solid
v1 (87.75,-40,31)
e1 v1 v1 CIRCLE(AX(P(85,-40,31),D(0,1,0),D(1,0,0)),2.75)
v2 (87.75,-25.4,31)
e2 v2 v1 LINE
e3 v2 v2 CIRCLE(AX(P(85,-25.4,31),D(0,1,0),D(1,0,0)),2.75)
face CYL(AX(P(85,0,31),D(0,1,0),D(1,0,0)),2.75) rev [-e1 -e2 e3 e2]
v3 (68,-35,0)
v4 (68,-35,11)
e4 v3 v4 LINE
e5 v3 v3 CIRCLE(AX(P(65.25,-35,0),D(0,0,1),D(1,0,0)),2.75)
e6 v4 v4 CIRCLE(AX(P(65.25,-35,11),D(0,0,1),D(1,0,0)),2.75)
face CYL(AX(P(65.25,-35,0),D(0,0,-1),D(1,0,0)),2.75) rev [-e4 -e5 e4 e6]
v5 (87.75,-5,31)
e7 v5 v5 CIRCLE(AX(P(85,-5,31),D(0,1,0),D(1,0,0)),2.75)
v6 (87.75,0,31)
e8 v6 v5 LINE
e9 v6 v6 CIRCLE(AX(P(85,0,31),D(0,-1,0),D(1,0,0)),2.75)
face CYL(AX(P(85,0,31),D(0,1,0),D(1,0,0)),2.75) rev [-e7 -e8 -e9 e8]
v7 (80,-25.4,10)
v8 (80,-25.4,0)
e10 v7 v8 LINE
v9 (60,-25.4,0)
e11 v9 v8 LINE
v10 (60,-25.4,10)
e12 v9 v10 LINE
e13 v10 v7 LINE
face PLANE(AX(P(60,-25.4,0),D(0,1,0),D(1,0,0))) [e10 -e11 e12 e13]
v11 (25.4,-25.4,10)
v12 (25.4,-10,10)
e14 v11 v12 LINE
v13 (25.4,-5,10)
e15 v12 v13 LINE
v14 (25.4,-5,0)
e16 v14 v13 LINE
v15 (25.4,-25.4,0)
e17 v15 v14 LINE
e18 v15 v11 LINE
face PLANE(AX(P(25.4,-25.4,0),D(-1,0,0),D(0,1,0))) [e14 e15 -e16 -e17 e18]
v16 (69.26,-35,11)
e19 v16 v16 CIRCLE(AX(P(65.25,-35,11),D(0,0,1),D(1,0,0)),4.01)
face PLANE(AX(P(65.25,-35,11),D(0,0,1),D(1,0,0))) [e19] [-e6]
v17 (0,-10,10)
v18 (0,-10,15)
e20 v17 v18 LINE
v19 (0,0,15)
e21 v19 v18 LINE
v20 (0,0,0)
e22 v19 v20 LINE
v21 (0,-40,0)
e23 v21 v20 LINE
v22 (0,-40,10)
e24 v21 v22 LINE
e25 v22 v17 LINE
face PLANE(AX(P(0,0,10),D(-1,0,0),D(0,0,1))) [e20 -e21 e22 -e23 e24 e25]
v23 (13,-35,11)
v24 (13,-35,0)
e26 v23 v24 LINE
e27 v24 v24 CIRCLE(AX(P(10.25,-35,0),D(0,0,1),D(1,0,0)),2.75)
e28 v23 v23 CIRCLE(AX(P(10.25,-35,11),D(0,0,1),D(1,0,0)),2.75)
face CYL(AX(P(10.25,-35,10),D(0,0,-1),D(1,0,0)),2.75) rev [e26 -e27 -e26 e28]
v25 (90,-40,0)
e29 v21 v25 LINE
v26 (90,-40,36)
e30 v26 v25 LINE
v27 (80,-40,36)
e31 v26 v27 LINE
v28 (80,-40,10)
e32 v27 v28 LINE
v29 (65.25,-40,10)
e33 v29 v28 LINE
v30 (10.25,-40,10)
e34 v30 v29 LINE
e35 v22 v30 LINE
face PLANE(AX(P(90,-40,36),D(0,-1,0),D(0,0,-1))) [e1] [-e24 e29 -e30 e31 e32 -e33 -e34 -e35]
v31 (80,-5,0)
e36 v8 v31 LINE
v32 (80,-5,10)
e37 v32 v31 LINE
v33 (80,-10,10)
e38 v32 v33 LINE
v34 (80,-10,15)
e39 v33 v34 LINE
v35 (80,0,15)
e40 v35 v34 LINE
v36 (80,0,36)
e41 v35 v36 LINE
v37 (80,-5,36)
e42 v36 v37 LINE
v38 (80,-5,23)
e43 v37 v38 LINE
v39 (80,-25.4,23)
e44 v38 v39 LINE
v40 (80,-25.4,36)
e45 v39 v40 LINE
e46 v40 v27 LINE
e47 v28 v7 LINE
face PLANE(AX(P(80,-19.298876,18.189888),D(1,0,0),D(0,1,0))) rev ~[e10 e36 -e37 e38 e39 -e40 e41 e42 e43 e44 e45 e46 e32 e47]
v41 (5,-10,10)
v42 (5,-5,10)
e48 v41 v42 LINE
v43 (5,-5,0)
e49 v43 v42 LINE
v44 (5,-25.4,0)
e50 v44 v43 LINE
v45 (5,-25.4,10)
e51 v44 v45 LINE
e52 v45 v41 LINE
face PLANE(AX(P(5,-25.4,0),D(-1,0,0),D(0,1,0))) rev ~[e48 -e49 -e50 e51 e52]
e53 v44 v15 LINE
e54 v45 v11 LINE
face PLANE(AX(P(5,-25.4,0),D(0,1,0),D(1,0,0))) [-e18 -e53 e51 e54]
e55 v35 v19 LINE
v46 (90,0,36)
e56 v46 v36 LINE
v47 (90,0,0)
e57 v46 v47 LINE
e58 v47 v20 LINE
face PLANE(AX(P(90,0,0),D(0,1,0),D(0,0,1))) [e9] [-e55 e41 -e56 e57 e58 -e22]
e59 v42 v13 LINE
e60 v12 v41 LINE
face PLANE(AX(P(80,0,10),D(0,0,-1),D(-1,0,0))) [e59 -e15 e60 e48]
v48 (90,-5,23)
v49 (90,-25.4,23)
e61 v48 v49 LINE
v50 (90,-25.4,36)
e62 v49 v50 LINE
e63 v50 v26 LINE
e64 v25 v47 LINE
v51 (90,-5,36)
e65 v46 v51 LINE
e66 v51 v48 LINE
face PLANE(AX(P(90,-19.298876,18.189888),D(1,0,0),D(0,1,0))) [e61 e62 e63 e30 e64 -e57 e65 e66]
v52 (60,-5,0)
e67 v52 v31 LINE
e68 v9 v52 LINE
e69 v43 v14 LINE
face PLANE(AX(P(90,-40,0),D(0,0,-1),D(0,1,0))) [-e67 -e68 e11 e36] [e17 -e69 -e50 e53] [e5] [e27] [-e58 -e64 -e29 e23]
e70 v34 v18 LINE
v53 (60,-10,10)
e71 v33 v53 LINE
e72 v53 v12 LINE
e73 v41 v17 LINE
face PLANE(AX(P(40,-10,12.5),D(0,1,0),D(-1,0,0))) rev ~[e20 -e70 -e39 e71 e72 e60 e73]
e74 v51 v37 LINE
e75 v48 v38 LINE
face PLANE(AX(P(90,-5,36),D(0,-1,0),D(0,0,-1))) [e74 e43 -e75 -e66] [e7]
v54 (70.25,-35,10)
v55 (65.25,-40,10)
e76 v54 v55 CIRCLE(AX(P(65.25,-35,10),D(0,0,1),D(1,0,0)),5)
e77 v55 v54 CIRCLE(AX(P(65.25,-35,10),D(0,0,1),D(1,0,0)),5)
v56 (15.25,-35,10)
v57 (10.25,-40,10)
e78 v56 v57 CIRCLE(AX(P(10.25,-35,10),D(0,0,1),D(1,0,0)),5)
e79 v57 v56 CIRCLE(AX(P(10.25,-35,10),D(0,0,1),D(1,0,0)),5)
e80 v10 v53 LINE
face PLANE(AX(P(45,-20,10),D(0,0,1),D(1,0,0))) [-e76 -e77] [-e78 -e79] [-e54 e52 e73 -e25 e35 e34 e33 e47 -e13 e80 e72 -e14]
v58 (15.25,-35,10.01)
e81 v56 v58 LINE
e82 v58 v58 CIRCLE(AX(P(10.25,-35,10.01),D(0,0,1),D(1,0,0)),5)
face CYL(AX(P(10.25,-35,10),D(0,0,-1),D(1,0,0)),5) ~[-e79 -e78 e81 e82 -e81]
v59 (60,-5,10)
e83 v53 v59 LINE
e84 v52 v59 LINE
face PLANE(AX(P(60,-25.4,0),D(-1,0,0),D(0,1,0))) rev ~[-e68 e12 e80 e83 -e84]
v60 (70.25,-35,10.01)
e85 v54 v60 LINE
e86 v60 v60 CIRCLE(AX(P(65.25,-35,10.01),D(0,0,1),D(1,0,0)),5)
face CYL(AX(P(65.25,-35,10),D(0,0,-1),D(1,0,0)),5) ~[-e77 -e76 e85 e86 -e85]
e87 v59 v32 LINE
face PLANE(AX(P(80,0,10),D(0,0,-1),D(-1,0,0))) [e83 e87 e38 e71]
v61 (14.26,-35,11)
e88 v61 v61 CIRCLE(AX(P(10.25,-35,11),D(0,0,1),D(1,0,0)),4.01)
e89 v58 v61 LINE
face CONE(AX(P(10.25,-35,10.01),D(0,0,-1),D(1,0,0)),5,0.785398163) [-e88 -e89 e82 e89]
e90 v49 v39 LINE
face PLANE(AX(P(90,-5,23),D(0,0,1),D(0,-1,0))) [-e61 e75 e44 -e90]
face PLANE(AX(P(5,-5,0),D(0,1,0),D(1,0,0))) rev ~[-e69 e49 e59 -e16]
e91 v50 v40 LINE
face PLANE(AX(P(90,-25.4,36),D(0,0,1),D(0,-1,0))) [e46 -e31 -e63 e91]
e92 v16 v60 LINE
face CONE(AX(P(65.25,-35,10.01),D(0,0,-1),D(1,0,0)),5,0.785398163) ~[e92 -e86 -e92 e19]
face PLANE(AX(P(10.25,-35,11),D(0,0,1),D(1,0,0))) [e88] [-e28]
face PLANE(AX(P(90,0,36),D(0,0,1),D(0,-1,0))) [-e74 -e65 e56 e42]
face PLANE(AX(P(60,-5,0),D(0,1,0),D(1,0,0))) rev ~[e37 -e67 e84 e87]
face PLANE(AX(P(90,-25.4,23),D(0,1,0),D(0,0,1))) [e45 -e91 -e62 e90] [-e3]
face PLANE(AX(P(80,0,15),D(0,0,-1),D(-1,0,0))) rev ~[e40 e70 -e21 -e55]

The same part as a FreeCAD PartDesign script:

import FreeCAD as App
import Part
import Sketcher


def edges_at(feature, points):
    """Names of the edges that pass closest to the given points."""
    edges = feature.Shape.Edges
    near = lambda p: min(range(len(edges)), key=lambda i: edges[i].distToShape(Part.Vertex(*p))[0])
    return sorted({f"Edge{near(p) + 1}" for p in points})

doc = App.newDocument("Part")
body = doc.addObject("PartDesign::Body", "Body")

# Sketch on XY plane
sketch1 = doc.addObject("Sketcher::SketchObject", "Sketch")
body.addObject(sketch1)
sketch1.AttachmentSupport = (doc.XY_Plane, [""])
sketch1.MapMode = "FlatFace"
sketch1.addGeometry(Part.LineSegment(App.Vector(0, 0, 0), App.Vector(0, -40, 0)), False)
sketch1.addGeometry(Part.LineSegment(App.Vector(0, -40, 0), App.Vector(90, -40, 0)), False)
sketch1.addGeometry(Part.LineSegment(App.Vector(90, -40, 0), App.Vector(90, 0, 0)), False)
sketch1.addGeometry(Part.LineSegment(App.Vector(90, 0, 0), App.Vector(0, 0, 0)), False)
sketch1.addGeometry(Part.LineSegment(App.Vector(25.4, -25.4, 0), App.Vector(5, -25.4, 0)), False)
sketch1.addGeometry(Part.LineSegment(App.Vector(5, -25.4, 0), App.Vector(5, -5, 0)), False)
sketch1.addGeometry(Part.LineSegment(App.Vector(5, -5, 0), App.Vector(25.4, -5, 0)), False)
sketch1.addGeometry(Part.LineSegment(App.Vector(25.4, -5, 0), App.Vector(25.4, -25.4, 0)), False)
sketch1.addGeometry(Part.LineSegment(App.Vector(80.4, -25.4, 0), App.Vector(60, -25.4, 0)), False)
sketch1.addGeometry(Part.LineSegment(App.Vector(60, -25.4, 0), App.Vector(60, -5, 0)), False)
sketch1.addGeometry(Part.LineSegment(App.Vector(60, -5, 0), App.Vector(80.4, -5, 0)), False)
sketch1.addGeometry(Part.LineSegment(App.Vector(80.4, -5, 0), App.Vector(80.4, -25.4, 0)), False)
sketch1.addConstraint(Sketcher.Constraint("Coincident", 0, 2, 1, 1))
sketch1.addConstraint(Sketcher.Constraint("Coincident", 1, 2, 2, 1))
sketch1.addConstraint(Sketcher.Constraint("Coincident", 2, 2, 3, 1))
sketch1.addConstraint(Sketcher.Constraint("Coincident", 3, 2, 0, 1))
sketch1.addConstraint(Sketcher.Constraint("Coincident", 4, 2, 5, 1))
sketch1.addConstraint(Sketcher.Constraint("Coincident", 5, 2, 6, 1))
sketch1.addConstraint(Sketcher.Constraint("Coincident", 6, 2, 7, 1))
sketch1.addConstraint(Sketcher.Constraint("Coincident", 7, 2, 4, 1))
sketch1.addConstraint(Sketcher.Constraint("Coincident", 8, 2, 9, 1))
sketch1.addConstraint(Sketcher.Constraint("Coincident", 9, 2, 10, 1))
sketch1.addConstraint(Sketcher.Constraint("Coincident", 10, 2, 11, 1))
sketch1.addConstraint(Sketcher.Constraint("Coincident", 11, 2, 8, 1))
sketch1.addConstraint(Sketcher.Constraint("Vertical", 0))
sketch1.addConstraint(Sketcher.Constraint("Horizontal", 1))
sketch1.addConstraint(Sketcher.Constraint("Vertical", 2))
sketch1.addConstraint(Sketcher.Constraint("Horizontal", 3))
sketch1.addConstraint(Sketcher.Constraint("Horizontal", 4))
sketch1.addConstraint(Sketcher.Constraint("Vertical", 5))
sketch1.addConstraint(Sketcher.Constraint("Horizontal", 6))
sketch1.addConstraint(Sketcher.Constraint("Vertical", 7))
sketch1.addConstraint(Sketcher.Constraint("Horizontal", 8))
sketch1.addConstraint(Sketcher.Constraint("Vertical", 9))
sketch1.addConstraint(Sketcher.Constraint("Horizontal", 10))
sketch1.addConstraint(Sketcher.Constraint("Vertical", 11))
sketch1.addConstraint(Sketcher.Constraint("Coincident", 3, 2, -1, 1))
sketch1.addConstraint(Sketcher.Constraint("Horizontal", 7, 2, 8, 2))
sketch1.addConstraint(Sketcher.Constraint("Horizontal", 6, 2, 9, 2))
sketch1.addConstraint(Sketcher.Constraint("Equal", 6, 8))
sketch1.addConstraint(Sketcher.Constraint("Equal", 10, 5))
sketch1.addConstraint(Sketcher.Constraint("DistanceX", 1, 1, 1, 2, 90.0))
sketch1.addConstraint(Sketcher.Constraint("DistanceY", 0, 2, 0, 1, 40.0))
sketch1.addConstraint(Sketcher.Constraint("DistanceX", 4, 2, 4, 1, 20.4))
sketch1.addConstraint(Sketcher.Constraint("DistanceX", -1, 1, 4, 2, 5.0))
sketch1.addConstraint(Sketcher.Constraint("DistanceY", 5, 2, -1, 1, 5.0))
sketch1.addConstraint(Sketcher.Constraint("DistanceX", -1, 1, 8, 2, 60.0))
pad1 = doc.addObject("PartDesign::Pad", "Pad")
body.addObject(pad1)
pad1.Profile = sketch1
pad1.Length = 10

# Sketch on YZ plane
sketch2 = doc.addObject("Sketcher::SketchObject", "Sketch001")
body.addObject(sketch2)
sketch2.AttachmentSupport = (doc.YZ_Plane, [""])
sketch2.MapMode = "FlatFace"
sketch2.AttachmentOffset = App.Placement(App.Vector(0, 0, 90), App.Rotation())
sketch2.addGeometry(Part.LineSegment(App.Vector(0, 36, 0), App.Vector(-5, 36, 0)), False)
sketch2.addGeometry(Part.LineSegment(App.Vector(-5, 36, 0), App.Vector(-5, 23, 0)), False)
sketch2.addGeometry(Part.LineSegment(App.Vector(-5, 23, 0), App.Vector(-25.4, 23, 0)), False)
sketch2.addGeometry(Part.LineSegment(App.Vector(-25.4, 23, 0), App.Vector(-25.4, 36, 0)), False)
sketch2.addGeometry(Part.LineSegment(App.Vector(-25.4, 36, 0), App.Vector(-40, 36, 0)), False)
sketch2.addGeometry(Part.LineSegment(App.Vector(-40, 36, 0), App.Vector(-40, 0, 0)), False)
sketch2.addGeometry(Part.LineSegment(App.Vector(-40, 0, 0), App.Vector(0, 0, 0)), False)
sketch2.addGeometry(Part.LineSegment(App.Vector(0, 0, 0), App.Vector(0, 36, 0)), False)
sketch2.addConstraint(Sketcher.Constraint("Coincident", 0, 2, 1, 1))
sketch2.addConstraint(Sketcher.Constraint("Coincident", 1, 2, 2, 1))
sketch2.addConstraint(Sketcher.Constraint("Coincident", 2, 2, 3, 1))
sketch2.addConstraint(Sketcher.Constraint("Coincident", 3, 2, 4, 1))
sketch2.addConstraint(Sketcher.Constraint("Coincident", 4, 2, 5, 1))
sketch2.addConstraint(Sketcher.Constraint("Coincident", 5, 2, 6, 1))
sketch2.addConstraint(Sketcher.Constraint("Coincident", 6, 2, 7, 1))
sketch2.addConstraint(Sketcher.Constraint("Coincident", 7, 2, 0, 1))
sketch2.addConstraint(Sketcher.Constraint("Horizontal", 0))
sketch2.addConstraint(Sketcher.Constraint("Vertical", 1))
sketch2.addConstraint(Sketcher.Constraint("Horizontal", 2))
sketch2.addConstraint(Sketcher.Constraint("Vertical", 3))
sketch2.addConstraint(Sketcher.Constraint("Horizontal", 4))
sketch2.addConstraint(Sketcher.Constraint("Vertical", 5))
sketch2.addConstraint(Sketcher.Constraint("Horizontal", 6))
sketch2.addConstraint(Sketcher.Constraint("Vertical", 7))
sketch2.addConstraint(Sketcher.Constraint("Coincident", 6, 2, -1, 1))
sketch2.addConstraint(Sketcher.Constraint("Horizontal", 0, 2, 3, 2))
sketch2.addConstraint(Sketcher.Constraint("DistanceX", 0, 2, 0, 1, 5.0))
sketch2.addConstraint(Sketcher.Constraint("DistanceX", 6, 1, 6, 2, 40.0))
sketch2.addConstraint(Sketcher.Constraint("DistanceY", 1, 2, 1, 1, 13.0))
sketch2.addConstraint(Sketcher.Constraint("DistanceY", 5, 2, 5, 1, 36.0))
sketch2.addConstraint(Sketcher.Constraint("DistanceX", 2, 2, 2, 1, 20.4))
pad2 = doc.addObject("PartDesign::Pad", "Pad001")
body.addObject(pad2)
pad2.Profile = sketch2
pad2.Length = 10
pad2.Reversed = True

# Sketch on XZ plane
sketch3 = doc.addObject("Sketcher::SketchObject", "Sketch002")
body.addObject(sketch3)
sketch3.AttachmentSupport = (doc.XZ_Plane, [""])
sketch3.MapMode = "FlatFace"
sketch3.addGeometry(Part.Circle(App.Vector(85, 31, 0), App.Vector(0, 0, 1), 2.75), False)
sketch3.addConstraint(Sketcher.Constraint("Diameter", 0, 5.5))
sketch3.addConstraint(Sketcher.Constraint("DistanceX", -1, 1, 0, 3, 85.0))
sketch3.addConstraint(Sketcher.Constraint("DistanceY", -1, 1, 0, 3, 31.0))
pocket1 = doc.addObject("PartDesign::Pocket", "Pocket")
body.addObject(pocket1)
pocket1.Profile = sketch3
pocket1.Type = "ThroughAll"
pocket1.Reversed = True

# Sketch on XY plane
sketch4 = doc.addObject("Sketcher::SketchObject", "Sketch003")
body.addObject(sketch4)
sketch4.AttachmentSupport = (doc.XY_Plane, [""])
sketch4.MapMode = "FlatFace"
sketch4.addGeometry(Part.Circle(App.Vector(10.25, -35, 0), App.Vector(0, 0, 1), 2.75), False)
sketch4.addGeometry(Part.Circle(App.Vector(65.25, -35, 0), App.Vector(0, 0, 1), 2.75), False)
sketch4.addConstraint(Sketcher.Constraint("Equal", 0, 1))
sketch4.addConstraint(Sketcher.Constraint("Horizontal", 0, 3, 1, 3))
sketch4.addConstraint(Sketcher.Constraint("Diameter", 0, 5.5))
sketch4.addConstraint(Sketcher.Constraint("DistanceY", 0, 3, -1, 1, 35.0))
sketch4.addConstraint(Sketcher.Constraint("DistanceX", 0, 3, 1, 3, 55.0))
sketch4.addConstraint(Sketcher.Constraint("DistanceX", -1, 1, 0, 3, 10.25))
pocket2 = doc.addObject("PartDesign::Pocket", "Pocket001")
body.addObject(pocket2)
pocket2.Profile = sketch4
pocket2.Type = "ThroughAll"
pocket2.Reversed = True

# Sketch on XZ plane
sketch5 = doc.addObject("Sketcher::SketchObject", "Sketch004")
body.addObject(sketch5)
sketch5.AttachmentSupport = (doc.XZ_Plane, [""])
sketch5.MapMode = "FlatFace"
sketch5.addGeometry(Part.LineSegment(App.Vector(80, 15, 0), App.Vector(80, 10, 0)), False)
sketch5.addGeometry(Part.LineSegment(App.Vector(80, 10, 0), App.Vector(0, 10, 0)), False)
sketch5.addGeometry(Part.LineSegment(App.Vector(0, 10, 0), App.Vector(0, 15, 0)), False)
sketch5.addGeometry(Part.LineSegment(App.Vector(0, 15, 0), App.Vector(80, 15, 0)), False)
sketch5.addConstraint(Sketcher.Constraint("Coincident", 0, 2, 1, 1))
sketch5.addConstraint(Sketcher.Constraint("Coincident", 1, 2, 2, 1))
sketch5.addConstraint(Sketcher.Constraint("Coincident", 2, 2, 3, 1))
sketch5.addConstraint(Sketcher.Constraint("Coincident", 3, 2, 0, 1))
sketch5.addConstraint(Sketcher.Constraint("Vertical", 0))
sketch5.addConstraint(Sketcher.Constraint("Horizontal", 1))
sketch5.addConstraint(Sketcher.Constraint("Vertical", 2))
sketch5.addConstraint(Sketcher.Constraint("Horizontal", 3))
sketch5.addConstraint(Sketcher.Constraint("PointOnObject", 1, 2, -2))
sketch5.addConstraint(Sketcher.Constraint("DistanceX", 1, 2, 1, 1, 80.0))
sketch5.addConstraint(Sketcher.Constraint("DistanceY", 0, 2, 0, 1, 5.0))
sketch5.addConstraint(Sketcher.Constraint("DistanceY", -1, 1, 0, 2, 10.0))
pad3 = doc.addObject("PartDesign::Pad", "Pad002")
body.addObject(pad3)
pad3.Profile = sketch5
pad3.Length = 10

# Sketch on XY plane
sketch6 = doc.addObject("Sketcher::SketchObject", "Sketch005")
body.addObject(sketch6)
sketch6.AttachmentSupport = (doc.XY_Plane, [""])
sketch6.MapMode = "FlatFace"
sketch6.AttachmentOffset = App.Placement(App.Vector(0, 0, 10), App.Rotation())
sketch6.addGeometry(Part.Circle(App.Vector(10.25, -35, 0), App.Vector(0, 0, 1), 5), False)
sketch6.addGeometry(Part.Circle(App.Vector(10.25, -35, 0), App.Vector(0, 0, 1), 2.75), False)
sketch6.addGeometry(Part.Circle(App.Vector(65.25, -35, 0), App.Vector(0, 0, 1), 5), False)
sketch6.addGeometry(Part.Circle(App.Vector(65.25, -35, 0), App.Vector(0, 0, 1), 2.75), False)
sketch6.addConstraint(Sketcher.Constraint("Coincident", 1, 3, 0, 3))
sketch6.addConstraint(Sketcher.Constraint("Coincident", 3, 3, 2, 3))
sketch6.addConstraint(Sketcher.Constraint("Equal", 0, 2))
sketch6.addConstraint(Sketcher.Constraint("Equal", 1, 3))
sketch6.addConstraint(Sketcher.Constraint("Horizontal", 1, 3, 2, 3))
sketch6.addConstraint(Sketcher.Constraint("Diameter", 0, 10.0))
sketch6.addConstraint(Sketcher.Constraint("Diameter", 1, 5.5))
sketch6.addConstraint(Sketcher.Constraint("DistanceY", 0, 3, -1, 1, 35.0))
sketch6.addConstraint(Sketcher.Constraint("DistanceX", 0, 3, 2, 3, 55.0))
sketch6.addConstraint(Sketcher.Constraint("DistanceX", -1, 1, 0, 3, 10.25))
pad4 = doc.addObject("PartDesign::Pad", "Pad003")
body.addObject(pad4)
pad4.Profile = sketch6
pad4.Length = 1
doc.recompute()

chamfer = doc.addObject("PartDesign::Chamfer", "Chamfer")
body.addObject(chamfer)
chamfer.Base = (pad4, edges_at(pad4, [(5.25, -35, 11), (60.25, -35, 11)]))
chamfer.Size = 0.99

doc.recompute()
